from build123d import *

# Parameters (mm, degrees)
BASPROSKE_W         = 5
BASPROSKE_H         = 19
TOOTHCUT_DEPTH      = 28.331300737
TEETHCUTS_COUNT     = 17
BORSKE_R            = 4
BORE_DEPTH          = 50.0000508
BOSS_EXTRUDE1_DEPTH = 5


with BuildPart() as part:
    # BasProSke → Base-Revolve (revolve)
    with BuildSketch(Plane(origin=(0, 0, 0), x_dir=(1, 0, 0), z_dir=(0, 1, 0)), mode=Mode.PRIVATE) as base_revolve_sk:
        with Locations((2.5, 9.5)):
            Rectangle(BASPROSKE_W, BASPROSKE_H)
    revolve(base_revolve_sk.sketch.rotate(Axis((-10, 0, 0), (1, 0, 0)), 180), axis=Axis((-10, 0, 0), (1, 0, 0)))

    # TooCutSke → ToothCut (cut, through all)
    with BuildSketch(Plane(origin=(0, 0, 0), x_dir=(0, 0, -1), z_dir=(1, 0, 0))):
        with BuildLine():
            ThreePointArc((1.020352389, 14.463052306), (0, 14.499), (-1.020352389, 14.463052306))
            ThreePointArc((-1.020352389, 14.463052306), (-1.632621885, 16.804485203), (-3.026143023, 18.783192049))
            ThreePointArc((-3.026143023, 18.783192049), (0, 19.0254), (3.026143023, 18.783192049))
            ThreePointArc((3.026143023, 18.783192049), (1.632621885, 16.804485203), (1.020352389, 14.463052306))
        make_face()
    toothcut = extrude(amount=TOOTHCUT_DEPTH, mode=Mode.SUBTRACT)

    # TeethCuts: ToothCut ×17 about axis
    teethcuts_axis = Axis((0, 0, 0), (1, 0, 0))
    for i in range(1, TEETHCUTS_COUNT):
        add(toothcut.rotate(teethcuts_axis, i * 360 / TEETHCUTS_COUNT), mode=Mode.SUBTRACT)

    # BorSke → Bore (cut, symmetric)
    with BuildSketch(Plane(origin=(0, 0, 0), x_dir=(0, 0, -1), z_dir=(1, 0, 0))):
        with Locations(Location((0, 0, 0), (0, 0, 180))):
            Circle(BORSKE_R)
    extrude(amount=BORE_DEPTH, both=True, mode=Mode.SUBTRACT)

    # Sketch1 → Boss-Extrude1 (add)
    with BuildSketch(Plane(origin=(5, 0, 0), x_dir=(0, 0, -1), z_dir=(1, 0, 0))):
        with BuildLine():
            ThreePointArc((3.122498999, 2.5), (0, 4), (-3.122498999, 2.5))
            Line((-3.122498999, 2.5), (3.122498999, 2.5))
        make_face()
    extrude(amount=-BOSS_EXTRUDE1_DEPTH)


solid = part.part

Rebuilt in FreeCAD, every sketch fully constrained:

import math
import FreeCAD as App
import Part
import Sketcher
Q = App.Units.Quantity


def add_polygon(sketch, points):
    """Adds a closed chain of lines whose ends are joined by coincident constraints."""
    first, n = sketch.GeometryCount, len(points)
    for a, b in zip(points, points[1:] + points[:1]):
        sketch.addGeometry(Part.LineSegment(App.Vector(*a, 0), App.Vector(*b, 0)), False)
    for i in range(n):
        sketch.addConstraint(Sketcher.Constraint("Coincident", first + i, 2, first + (i + 1) % n, 1))

doc = App.newDocument("Part")
body = doc.addObject("PartDesign::Body", "Body")

# Sketch on XZ plane
sketch1 = doc.addObject("Sketcher::SketchObject", "Sketch")
body.addObject(sketch1)
sketch1.AttachmentSupport = (doc.XZ_Plane, [""])
sketch1.MapMode = "FlatFace"
add_polygon(sketch1, [(0, -19), (0, 0), (5, 0), (5, -19)])  # lines 0-3
sketch1.addConstraint(Sketcher.Constraint("Vertical", 0))
sketch1.addConstraint(Sketcher.Constraint("Horizontal", 1))
sketch1.addConstraint(Sketcher.Constraint("Vertical", 2))
sketch1.addConstraint(Sketcher.Constraint("Horizontal", 3))
sketch1.addConstraint(Sketcher.Constraint("Coincident", 0, 2, -1, 1))
sketch1.addConstraint(Sketcher.Constraint("DistanceX", 1, 1, 1, 2, Q("5 mm")))
sketch1.addConstraint(Sketcher.Constraint("DistanceY", 0, 1, 0, 2, Q("19 mm")))
revolution = doc.addObject("PartDesign::Revolution", "Revolution")
body.addObject(revolution)
revolution.Profile = sketch1
revolution.ReferenceAxis = (sketch1, ["H_Axis"])
revolution.Angle = 360

# Sketch on YZ plane
sketch2 = doc.addObject("Sketcher::SketchObject", "Sketch001")
body.addObject(sketch2)
sketch2.AttachmentSupport = (doc.YZ_Plane, [""])
sketch2.MapMode = "FlatFace"
sketch2.addGeometry(Part.ArcOfCircle(Part.Circle(App.Vector(0, 0, 0), App.Vector(0, 0, 1), 14.5), math.radians(-4.04), math.radians(4.04)), False)
sketch2.addGeometry(Part.ArcOfCircle(Part.Circle(App.Vector(13.9, -7.8, 0), App.Vector(0, 0, 1), 6.8), math.radians(45), math.radians(86)), False)
sketch2.addGeometry(Part.ArcOfCircle(Part.Circle(App.Vector(0, 0, 0), App.Vector(0, 0, 1), 19), math.radians(-9.15), math.radians(9.15)), False)
sketch2.addGeometry(Part.ArcOfCircle(Part.Circle(App.Vector(13.9, 7.8, 0), App.Vector(0, 0, 1), 6.8), math.radians(-86), math.radians(-45)), False)
sketch2.addConstraint(Sketcher.Constraint("Coincident", 0, 1, 1, 2))
sketch2.addConstraint(Sketcher.Constraint("Coincident", 1, 1, 2, 1))
sketch2.addConstraint(Sketcher.Constraint("Coincident", 2, 2, 3, 2))
sketch2.addConstraint(Sketcher.Constraint("Coincident", 3, 1, 0, 2))
sketch2.addConstraint(Sketcher.Constraint("Coincident", 0, 3, -1, 1))
sketch2.addConstraint(Sketcher.Constraint("Coincident", 2, 3, -1, 1))
sketch2.addConstraint(Sketcher.Constraint("Equal", 1, 3))
sketch2.addConstraint(Sketcher.Constraint("Symmetric", 1, 3, 3, 3, -1))
sketch2.addConstraint(Sketcher.Constraint("Radius", 1, Q("6.8 mm")))
sketch2.addConstraint(Sketcher.Constraint("Radius", 0, Q("14.499 mm")))
sketch2.addConstraint(Sketcher.Constraint("Radius", 2, Q("19.0254 mm")))
sketch2.addConstraint(Sketcher.Constraint("DistanceY", 0, 1, 3, 3, Q("8.820629 mm")))
sketch2.addConstraint(Sketcher.Constraint("DistanceX", 0, 1, 1, 1, Q("4.32014 mm")))
pocket1 = doc.addObject("PartDesign::Pocket", "Pocket")
body.addObject(pocket1)
pocket1.Profile = sketch2
pocket1.Type = "ThroughAll"
pocket1.Reversed = True
doc.recompute()

polarpattern = doc.addObject("PartDesign::PolarPattern", "PolarPattern")
body.addObject(polarpattern)
polarpattern.Originals = [pocket1]
polarpattern.Axis = (doc.X_Axis, [""])
polarpattern.Angle = 360
polarpattern.Occurrences = 17
body.Tip = polarpattern

# Sketch on YZ plane
sketch3 = doc.addObject("Sketcher::SketchObject", "Sketch002")
body.addObject(sketch3)
sketch3.AttachmentSupport = (doc.YZ_Plane, [""])
sketch3.MapMode = "FlatFace"
sketch3.addGeometry(Part.Circle(App.Vector(0, 0, 0), App.Vector(0, 0, 1), 4), False)
sketch3.addConstraint(Sketcher.Constraint("Coincident", 0, 3, -1, 1))
sketch3.addConstraint(Sketcher.Constraint("Diameter", 0, Q("8 mm")))
pocket2 = doc.addObject("PartDesign::Pocket", "Pocket001")
body.addObject(pocket2)
pocket2.Profile = sketch3
pocket2.Length = 100.000102
pocket2.Midplane = True

# Sketch on YZ plane
sketch4 = doc.addObject("Sketcher::SketchObject", "Sketch003")
body.addObject(sketch4)
sketch4.AttachmentSupport = (doc.YZ_Plane, [""])
sketch4.MapMode = "FlatFace"
sketch4.AttachmentOffset = App.Placement(App.Vector(0, 0, 5), App.Rotation())
sketch4.addGeometry(Part.ArcOfCircle(Part.Circle(App.Vector(0, 0, 0), App.Vector(0, 0, 1), 4), math.radians(-51), math.radians(51)), False)
sketch4.addGeometry(Part.LineSegment(App.Vector(2.5, 3.1, 0), App.Vector(2.5, -3.1, 0)), False)
sketch4.addConstraint(Sketcher.Constraint("Coincident", 0, 1, 1, 2))
sketch4.addConstraint(Sketcher.Constraint("Coincident", 1, 1, 0, 2))
sketch4.addConstraint(Sketcher.Constraint("Vertical", 1))
sketch4.addConstraint(Sketcher.Constraint("Coincident", 0, 3, -1, 1))
sketch4.addConstraint(Sketcher.Constraint("Radius", 0, Q("4 mm")))
sketch4.addConstraint(Sketcher.Constraint("DistanceX", -1, 1, 0, 1, Q("2.5 mm")))
pad1 = doc.addObject("PartDesign::Pad", "Pad")
body.addObject(pad1)
pad1.Profile = sketch4
pad1.Length = 5
pad1.Reversed = True

doc.recompute()
